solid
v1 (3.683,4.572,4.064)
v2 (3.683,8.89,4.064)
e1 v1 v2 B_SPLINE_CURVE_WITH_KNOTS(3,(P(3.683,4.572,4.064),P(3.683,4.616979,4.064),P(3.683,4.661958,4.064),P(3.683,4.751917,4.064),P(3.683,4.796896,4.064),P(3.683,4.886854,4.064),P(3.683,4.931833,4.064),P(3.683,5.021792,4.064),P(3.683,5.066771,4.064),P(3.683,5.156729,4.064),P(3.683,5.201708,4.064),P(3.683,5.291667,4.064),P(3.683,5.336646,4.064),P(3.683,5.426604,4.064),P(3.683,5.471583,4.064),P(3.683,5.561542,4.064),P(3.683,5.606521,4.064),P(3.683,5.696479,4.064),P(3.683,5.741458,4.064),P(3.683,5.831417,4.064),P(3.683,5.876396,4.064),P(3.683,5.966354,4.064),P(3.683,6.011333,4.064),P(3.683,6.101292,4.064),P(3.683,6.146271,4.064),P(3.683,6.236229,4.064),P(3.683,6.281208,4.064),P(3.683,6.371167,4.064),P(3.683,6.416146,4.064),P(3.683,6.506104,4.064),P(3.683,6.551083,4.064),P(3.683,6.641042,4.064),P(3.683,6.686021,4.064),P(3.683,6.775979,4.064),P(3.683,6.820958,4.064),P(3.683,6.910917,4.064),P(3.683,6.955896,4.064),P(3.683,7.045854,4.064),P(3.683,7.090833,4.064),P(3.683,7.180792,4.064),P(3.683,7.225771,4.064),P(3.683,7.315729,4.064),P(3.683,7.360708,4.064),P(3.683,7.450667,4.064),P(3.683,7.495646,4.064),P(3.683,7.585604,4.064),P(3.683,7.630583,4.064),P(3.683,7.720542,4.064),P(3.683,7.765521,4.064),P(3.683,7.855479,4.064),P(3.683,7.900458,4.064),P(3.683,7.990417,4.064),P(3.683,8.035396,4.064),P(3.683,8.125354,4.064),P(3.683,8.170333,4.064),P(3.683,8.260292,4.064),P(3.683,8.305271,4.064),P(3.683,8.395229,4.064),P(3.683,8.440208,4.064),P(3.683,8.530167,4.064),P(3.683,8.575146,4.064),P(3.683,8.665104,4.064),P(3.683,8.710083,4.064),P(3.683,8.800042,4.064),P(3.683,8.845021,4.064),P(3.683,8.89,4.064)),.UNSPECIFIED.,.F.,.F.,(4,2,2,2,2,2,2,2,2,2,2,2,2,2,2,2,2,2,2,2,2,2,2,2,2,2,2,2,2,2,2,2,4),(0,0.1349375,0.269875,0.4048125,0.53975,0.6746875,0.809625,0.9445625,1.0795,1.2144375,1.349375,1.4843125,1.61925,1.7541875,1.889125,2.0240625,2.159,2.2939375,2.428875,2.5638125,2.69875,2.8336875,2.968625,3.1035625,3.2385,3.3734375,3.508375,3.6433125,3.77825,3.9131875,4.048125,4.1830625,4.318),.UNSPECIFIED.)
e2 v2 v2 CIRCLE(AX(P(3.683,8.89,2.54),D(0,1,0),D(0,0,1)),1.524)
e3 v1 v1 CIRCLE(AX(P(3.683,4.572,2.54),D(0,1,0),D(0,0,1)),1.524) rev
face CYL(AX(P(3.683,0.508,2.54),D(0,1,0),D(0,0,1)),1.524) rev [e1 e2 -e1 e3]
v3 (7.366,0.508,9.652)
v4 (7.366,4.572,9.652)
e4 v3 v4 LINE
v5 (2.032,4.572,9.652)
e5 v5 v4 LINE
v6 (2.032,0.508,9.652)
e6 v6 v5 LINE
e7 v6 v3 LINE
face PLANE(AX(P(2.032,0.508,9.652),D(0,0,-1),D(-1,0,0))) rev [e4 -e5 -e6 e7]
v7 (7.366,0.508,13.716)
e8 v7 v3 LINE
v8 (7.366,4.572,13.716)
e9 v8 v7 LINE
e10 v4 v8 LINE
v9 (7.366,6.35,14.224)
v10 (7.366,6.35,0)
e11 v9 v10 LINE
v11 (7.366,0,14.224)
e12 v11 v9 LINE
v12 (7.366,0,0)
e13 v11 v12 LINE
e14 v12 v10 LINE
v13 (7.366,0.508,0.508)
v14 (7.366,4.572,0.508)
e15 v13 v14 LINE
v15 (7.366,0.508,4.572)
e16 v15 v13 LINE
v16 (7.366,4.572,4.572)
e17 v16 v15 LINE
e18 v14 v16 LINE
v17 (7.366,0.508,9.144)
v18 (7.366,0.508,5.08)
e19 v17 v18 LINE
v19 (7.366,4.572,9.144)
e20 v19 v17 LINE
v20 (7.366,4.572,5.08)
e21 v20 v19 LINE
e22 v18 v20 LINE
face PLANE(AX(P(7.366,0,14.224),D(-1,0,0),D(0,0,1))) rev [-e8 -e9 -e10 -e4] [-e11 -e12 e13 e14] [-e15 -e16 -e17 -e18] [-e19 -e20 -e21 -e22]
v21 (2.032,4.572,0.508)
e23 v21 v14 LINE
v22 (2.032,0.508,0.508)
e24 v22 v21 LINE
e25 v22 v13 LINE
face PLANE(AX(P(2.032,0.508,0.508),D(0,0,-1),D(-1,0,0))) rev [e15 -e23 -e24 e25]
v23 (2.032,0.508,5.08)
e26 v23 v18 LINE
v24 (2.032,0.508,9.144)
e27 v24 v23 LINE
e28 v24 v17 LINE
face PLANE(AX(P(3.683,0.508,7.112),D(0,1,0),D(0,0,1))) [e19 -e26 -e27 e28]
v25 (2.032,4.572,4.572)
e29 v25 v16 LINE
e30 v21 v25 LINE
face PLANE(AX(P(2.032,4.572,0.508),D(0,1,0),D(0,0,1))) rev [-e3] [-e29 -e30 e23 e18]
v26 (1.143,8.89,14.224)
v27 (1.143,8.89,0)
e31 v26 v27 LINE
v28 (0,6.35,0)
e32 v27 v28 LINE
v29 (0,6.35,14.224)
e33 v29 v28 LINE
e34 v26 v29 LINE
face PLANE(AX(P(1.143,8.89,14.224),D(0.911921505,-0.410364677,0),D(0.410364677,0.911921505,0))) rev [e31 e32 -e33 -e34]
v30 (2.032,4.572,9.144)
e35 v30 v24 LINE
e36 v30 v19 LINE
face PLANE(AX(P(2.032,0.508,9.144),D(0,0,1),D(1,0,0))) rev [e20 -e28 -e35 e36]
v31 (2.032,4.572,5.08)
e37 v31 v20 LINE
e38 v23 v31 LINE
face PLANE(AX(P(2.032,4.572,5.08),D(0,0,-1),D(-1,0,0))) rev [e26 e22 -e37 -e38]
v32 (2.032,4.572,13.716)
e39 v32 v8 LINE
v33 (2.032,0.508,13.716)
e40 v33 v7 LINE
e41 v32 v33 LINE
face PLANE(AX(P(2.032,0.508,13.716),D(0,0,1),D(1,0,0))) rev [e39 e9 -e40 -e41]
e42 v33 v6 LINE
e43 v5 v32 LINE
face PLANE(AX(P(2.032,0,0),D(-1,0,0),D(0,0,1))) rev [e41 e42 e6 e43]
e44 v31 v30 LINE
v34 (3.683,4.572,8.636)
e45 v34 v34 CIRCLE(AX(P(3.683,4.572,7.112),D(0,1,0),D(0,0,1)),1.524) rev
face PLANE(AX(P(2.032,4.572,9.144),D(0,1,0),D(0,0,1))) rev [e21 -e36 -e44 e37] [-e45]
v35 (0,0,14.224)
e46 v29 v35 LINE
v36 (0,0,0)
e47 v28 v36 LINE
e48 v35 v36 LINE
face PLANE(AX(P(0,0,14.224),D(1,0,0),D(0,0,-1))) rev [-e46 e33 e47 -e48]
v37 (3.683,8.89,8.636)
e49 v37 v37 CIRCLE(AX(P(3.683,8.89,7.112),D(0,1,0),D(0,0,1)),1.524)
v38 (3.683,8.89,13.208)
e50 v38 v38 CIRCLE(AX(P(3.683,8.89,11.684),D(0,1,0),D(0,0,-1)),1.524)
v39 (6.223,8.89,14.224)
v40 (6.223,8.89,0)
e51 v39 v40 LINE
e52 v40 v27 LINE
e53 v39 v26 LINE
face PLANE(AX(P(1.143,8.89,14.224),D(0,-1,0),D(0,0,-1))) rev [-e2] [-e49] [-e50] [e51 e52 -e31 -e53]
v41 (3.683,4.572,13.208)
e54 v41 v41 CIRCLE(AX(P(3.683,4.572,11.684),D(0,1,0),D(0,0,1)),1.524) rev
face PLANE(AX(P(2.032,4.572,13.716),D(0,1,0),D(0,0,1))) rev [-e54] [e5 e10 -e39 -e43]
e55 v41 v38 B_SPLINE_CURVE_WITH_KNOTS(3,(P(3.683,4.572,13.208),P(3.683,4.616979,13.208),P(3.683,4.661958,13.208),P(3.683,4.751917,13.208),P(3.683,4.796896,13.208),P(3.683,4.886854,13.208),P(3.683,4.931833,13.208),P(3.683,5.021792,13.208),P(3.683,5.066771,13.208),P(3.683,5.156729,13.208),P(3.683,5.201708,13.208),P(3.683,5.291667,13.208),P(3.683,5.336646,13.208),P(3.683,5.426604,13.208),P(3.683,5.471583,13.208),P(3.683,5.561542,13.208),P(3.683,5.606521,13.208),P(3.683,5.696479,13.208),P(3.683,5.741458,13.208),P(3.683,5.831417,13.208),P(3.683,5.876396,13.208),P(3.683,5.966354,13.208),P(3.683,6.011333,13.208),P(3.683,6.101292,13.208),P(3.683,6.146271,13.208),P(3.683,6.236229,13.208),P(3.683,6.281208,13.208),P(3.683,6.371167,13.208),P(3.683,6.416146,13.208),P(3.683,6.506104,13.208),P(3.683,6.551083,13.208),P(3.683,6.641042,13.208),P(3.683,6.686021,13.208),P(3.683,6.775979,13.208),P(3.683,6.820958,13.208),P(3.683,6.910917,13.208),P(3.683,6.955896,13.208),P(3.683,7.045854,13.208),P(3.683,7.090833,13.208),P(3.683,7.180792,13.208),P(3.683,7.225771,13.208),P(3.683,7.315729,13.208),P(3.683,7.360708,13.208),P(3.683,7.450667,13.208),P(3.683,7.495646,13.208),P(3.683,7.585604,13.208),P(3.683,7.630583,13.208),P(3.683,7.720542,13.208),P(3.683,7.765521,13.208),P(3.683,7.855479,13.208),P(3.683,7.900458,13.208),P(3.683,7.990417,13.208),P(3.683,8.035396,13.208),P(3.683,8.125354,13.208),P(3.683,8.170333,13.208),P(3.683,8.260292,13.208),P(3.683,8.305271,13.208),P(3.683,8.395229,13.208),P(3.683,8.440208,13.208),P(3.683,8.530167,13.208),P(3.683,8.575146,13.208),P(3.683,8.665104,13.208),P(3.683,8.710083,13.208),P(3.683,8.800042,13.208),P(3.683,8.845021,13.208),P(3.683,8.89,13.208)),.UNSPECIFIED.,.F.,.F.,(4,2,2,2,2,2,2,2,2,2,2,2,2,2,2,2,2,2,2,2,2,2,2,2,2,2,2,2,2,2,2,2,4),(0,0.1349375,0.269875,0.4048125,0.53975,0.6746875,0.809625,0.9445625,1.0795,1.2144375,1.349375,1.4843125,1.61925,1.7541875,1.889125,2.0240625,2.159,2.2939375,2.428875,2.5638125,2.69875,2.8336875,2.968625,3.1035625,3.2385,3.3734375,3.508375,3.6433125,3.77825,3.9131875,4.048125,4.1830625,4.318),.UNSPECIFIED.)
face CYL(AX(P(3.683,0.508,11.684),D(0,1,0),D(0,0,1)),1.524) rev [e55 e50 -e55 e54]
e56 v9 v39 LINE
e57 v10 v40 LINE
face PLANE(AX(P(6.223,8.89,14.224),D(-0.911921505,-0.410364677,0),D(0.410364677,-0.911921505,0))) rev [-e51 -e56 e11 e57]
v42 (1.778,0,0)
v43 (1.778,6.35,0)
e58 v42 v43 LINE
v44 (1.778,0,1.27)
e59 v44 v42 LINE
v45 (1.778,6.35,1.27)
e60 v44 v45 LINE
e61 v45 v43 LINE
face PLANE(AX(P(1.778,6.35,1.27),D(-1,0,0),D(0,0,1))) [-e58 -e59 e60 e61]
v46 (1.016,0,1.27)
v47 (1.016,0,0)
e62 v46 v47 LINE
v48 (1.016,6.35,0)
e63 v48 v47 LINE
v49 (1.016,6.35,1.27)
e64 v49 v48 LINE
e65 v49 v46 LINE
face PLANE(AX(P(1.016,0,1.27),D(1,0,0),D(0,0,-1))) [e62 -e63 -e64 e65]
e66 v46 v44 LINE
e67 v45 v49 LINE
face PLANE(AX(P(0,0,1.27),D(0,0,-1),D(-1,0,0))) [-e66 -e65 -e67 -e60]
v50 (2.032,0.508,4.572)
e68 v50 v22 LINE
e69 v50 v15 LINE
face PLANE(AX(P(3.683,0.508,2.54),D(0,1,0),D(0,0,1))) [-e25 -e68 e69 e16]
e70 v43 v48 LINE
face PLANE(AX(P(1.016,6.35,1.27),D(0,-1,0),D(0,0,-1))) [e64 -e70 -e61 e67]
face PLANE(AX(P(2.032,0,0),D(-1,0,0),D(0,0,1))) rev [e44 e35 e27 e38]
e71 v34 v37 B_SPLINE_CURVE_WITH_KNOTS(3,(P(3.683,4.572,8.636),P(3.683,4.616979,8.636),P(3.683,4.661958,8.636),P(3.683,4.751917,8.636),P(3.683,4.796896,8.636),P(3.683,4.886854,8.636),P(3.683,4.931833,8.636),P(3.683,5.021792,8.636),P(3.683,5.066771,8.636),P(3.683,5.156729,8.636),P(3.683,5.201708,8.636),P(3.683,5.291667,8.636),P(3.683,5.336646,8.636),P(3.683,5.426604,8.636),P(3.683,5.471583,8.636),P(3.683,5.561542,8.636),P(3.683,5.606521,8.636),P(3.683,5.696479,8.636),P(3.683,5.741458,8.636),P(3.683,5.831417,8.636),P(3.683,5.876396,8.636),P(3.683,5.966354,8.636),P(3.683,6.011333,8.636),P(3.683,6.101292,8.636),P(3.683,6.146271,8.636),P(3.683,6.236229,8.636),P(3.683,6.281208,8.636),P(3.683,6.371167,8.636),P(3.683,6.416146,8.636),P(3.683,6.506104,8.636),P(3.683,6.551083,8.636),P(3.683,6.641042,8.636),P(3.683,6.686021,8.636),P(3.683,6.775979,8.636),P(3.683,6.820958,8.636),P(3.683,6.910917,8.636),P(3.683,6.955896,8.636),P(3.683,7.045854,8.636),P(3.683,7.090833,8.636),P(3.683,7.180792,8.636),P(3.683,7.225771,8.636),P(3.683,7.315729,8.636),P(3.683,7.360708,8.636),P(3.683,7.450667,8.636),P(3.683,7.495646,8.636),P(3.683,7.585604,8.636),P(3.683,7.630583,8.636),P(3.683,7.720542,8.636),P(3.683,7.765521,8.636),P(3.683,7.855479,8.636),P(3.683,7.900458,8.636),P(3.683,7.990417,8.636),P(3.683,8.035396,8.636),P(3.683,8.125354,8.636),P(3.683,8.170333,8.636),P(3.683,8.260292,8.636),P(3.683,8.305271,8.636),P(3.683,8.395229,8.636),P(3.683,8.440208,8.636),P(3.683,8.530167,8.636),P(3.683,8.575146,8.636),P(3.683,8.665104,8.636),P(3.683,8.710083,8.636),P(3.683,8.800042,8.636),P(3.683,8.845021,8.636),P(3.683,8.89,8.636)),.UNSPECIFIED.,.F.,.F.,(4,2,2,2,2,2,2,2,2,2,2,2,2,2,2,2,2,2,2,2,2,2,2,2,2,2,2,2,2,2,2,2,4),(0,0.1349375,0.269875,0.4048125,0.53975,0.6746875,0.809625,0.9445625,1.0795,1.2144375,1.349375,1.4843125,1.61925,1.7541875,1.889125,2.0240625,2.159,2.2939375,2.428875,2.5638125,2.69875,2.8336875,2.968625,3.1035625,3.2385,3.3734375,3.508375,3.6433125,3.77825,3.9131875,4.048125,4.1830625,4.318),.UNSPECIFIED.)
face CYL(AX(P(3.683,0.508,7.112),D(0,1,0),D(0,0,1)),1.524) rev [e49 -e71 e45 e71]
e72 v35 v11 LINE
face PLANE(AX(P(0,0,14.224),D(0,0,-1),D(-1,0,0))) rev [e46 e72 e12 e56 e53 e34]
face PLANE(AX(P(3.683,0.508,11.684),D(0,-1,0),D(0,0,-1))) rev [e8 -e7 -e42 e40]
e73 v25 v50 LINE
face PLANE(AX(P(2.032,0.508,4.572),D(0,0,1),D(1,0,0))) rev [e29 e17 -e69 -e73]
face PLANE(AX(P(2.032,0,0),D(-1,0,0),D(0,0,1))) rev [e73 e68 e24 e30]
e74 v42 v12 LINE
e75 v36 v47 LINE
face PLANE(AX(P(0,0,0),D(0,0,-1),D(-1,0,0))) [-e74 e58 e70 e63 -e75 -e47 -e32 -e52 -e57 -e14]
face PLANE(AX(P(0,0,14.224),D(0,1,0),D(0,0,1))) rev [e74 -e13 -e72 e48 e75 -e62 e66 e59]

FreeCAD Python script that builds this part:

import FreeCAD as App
import Part
import Sketcher
Q = App.Units.Quantity

doc = App.newDocument("Part")
body = doc.addObject("PartDesign::Body", "Body")

# Sketch on XY plane
sketch1 = doc.addObject("Sketcher::SketchObject", "Sketch")
body.addObject(sketch1)
sketch1.AttachmentSupport = (doc.XY_Plane, [""])
sketch1.MapMode = "FlatFace"
sketch1.addGeometry(Part.LineSegment(App.Vector(0, 0, 0), App.Vector(7.4, 0, 0)), False)
sketch1.addGeometry(Part.LineSegment(App.Vector(7.4, 0, 0), App.Vector(7.4, 6.3, 0)), False)
sketch1.addGeometry(Part.LineSegment(App.Vector(7.4, 6.3, 0), App.Vector(6.2, 8.9, 0)), False)
sketch1.addGeometry(Part.LineSegment(App.Vector(6.2, 8.9, 0), App.Vector(1.1, 8.9, 0)), False)
sketch1.addGeometry(Part.LineSegment(App.Vector(1.1, 8.9, 0), App.Vector(0, 6.3, 0)), False)
sketch1.addGeometry(Part.LineSegment(App.Vector(0, 6.3, 0), App.Vector(0, 0, 0)), False)
sketch1.addConstraint(Sketcher.Constraint("Coincident", 0, 2, 1, 1))
sketch1.addConstraint(Sketcher.Constraint("Coincident", 1, 2, 2, 1))
sketch1.addConstraint(Sketcher.Constraint("Coincident", 2, 2, 3, 1))
sketch1.addConstraint(Sketcher.Constraint("Coincident", 3, 2, 4, 1))
sketch1.addConstraint(Sketcher.Constraint("Coincident", 4, 2, 5, 1))
sketch1.addConstraint(Sketcher.Constraint("Coincident", 5, 2, 0, 1))
sketch1.addConstraint(Sketcher.Constraint("Horizontal", 0))
sketch1.addConstraint(Sketcher.Constraint("Vertical", 1))
sketch1.addConstraint(Sketcher.Constraint("Horizontal", 3))
sketch1.addConstraint(Sketcher.Constraint("Vertical", 5))
sketch1.addConstraint(Sketcher.Constraint("Coincident", 5, 2, -1, 1))
sketch1.addConstraint(Sketcher.Constraint("Horizontal", 1, 2, 4, 2))
sketch1.addConstraint(Sketcher.Constraint("Equal", 2, 4))
sketch1.addConstraint(Sketcher.Constraint("DistanceX", 3, 2, 3, 1, Q("0.2 in")))
sketch1.addConstraint(Sketcher.Constraint("DistanceX", 0, 1, 0, 2, Q("0.29 in")))
sketch1.addConstraint(Sketcher.Constraint("DistanceY", 1, 1, 1, 2, Q("0.25 in")))
sketch1.addConstraint(Sketcher.Constraint("DistanceY", 1, 2, 2, 2, Q("0.1 in")))
pad1 = doc.addObject("PartDesign::Pad", "Pad")
body.addObject(pad1)
pad1.Profile = sketch1
pad1.Length = Q("0.56 in")

# Sketch on XZ plane
sketch2 = doc.addObject("Sketcher::SketchObject", "Sketch001")
body.addObject(sketch2)
sketch2.AttachmentSupport = (doc.XZ_Plane, [""])
sketch2.MapMode = "FlatFace"
sketch2.AttachmentOffset = App.Placement(App.Vector(0, 0, -0.35 * 25.4), App.Rotation())
sketch2.addGeometry(Part.Circle(App.Vector(3.7, 2.5, 0), App.Vector(0, 0, 1), 1.5), False)
sketch2.addGeometry(Part.Circle(App.Vector(3.7, 11.7, 0), App.Vector(0, 0, 1), 1.5), False)
sketch2.addGeometry(Part.Circle(App.Vector(3.7, 7.1, 0), App.Vector(0, 0, 1), 1.5), False)
sketch2.addConstraint(Sketcher.Constraint("Equal", 0, 1))
sketch2.addConstraint(Sketcher.Constraint("Equal", 1, 2))
sketch2.addConstraint(Sketcher.Constraint("Vertical", 0, 3, 1, 3))
sketch2.addConstraint(Sketcher.Constraint("Vertical", 1, 3, 2, 3))
sketch2.addConstraint(Sketcher.Constraint("Diameter", 0, Q("0.12 in")))
sketch2.addConstraint(Sketcher.Constraint("DistanceY", -1, 1, 0, 3, Q("0.1 in")))
sketch2.addConstraint(Sketcher.Constraint("DistanceY", -1, 1, 1, 3, Q("0.46 in")))
sketch2.addConstraint(Sketcher.Constraint("DistanceY", -1, 1, 2, 3, Q("0.28 in")))
sketch2.addConstraint(Sketcher.Constraint("DistanceX", -1, 1, 0, 3, Q("0.145 in")))
pocket1 = doc.addObject("PartDesign::Pocket", "Pocket")
body.addObject(pocket1)
pocket1.Profile = sketch2
pocket1.Length = Q("0.33 in")
pocket1.Reversed = True

# Sketch on YZ plane
sketch3 = doc.addObject("Sketcher::SketchObject", "Sketch002")
body.addObject(sketch3)
sketch3.AttachmentSupport = (doc.YZ_Plane, [""])
sketch3.MapMode = "FlatFace"
sketch3.AttachmentOffset = App.Placement(App.Vector(0, 0, 0.29 * 25.4), App.Rotation())
sketch3.addGeometry(Part.LineSegment(App.Vector(4.6, 13.7, 0), App.Vector(0.5, 13.7, 0)), False)
sketch3.addGeometry(Part.LineSegment(App.Vector(0.5, 13.7, 0), App.Vector(0.5, 9.7, 0)), False)
sketch3.addGeometry(Part.LineSegment(App.Vector(0.5, 9.7, 0), App.Vector(4.6, 9.7, 0)), False)
sketch3.addGeometry(Part.LineSegment(App.Vector(4.6, 9.7, 0), App.Vector(4.6, 13.7, 0)), False)
sketch3.addGeometry(Part.LineSegment(App.Vector(0.5, 9.1, 0), App.Vector(0.5, 5.1, 0)), False)
sketch3.addGeometry(Part.LineSegment(App.Vector(0.5, 5.1, 0), App.Vector(4.6, 5.1, 0)), False)
sketch3.addGeometry(Part.LineSegment(App.Vector(4.6, 5.1, 0), App.Vector(4.6, 9.1, 0)), False)
sketch3.addGeometry(Part.LineSegment(App.Vector(4.6, 9.1, 0), App.Vector(0.5, 9.1, 0)), False)
sketch3.addGeometry(Part.LineSegment(App.Vector(4.6, 4.6, 0), App.Vector(0.5, 4.6, 0)), False)
sketch3.addGeometry(Part.LineSegment(App.Vector(0.5, 4.6, 0), App.Vector(0.5, 0.5, 0)), False)
sketch3.addGeometry(Part.LineSegment(App.Vector(0.5, 0.5, 0), App.Vector(4.6, 0.5, 0)), False)
sketch3.addGeometry(Part.LineSegment(App.Vector(4.6, 0.5, 0), App.Vector(4.6, 4.6, 0)), False)
sketch3.addConstraint(Sketcher.Constraint("Coincident", 0, 2, 1, 1))
sketch3.addConstraint(Sketcher.Constraint("Coincident", 1, 2, 2, 1))
sketch3.addConstraint(Sketcher.Constraint("Coincident", 2, 2, 3, 1))
sketch3.addConstraint(Sketcher.Constraint("Coincident", 3, 2, 0, 1))
sketch3.addConstraint(Sketcher.Constraint("Coincident", 4, 2, 5, 1))
sketch3.addConstraint(Sketcher.Constraint("Coincident", 5, 2, 6, 1))
sketch3.addConstraint(Sketcher.Constraint("Coincident", 6, 2, 7, 1))
sketch3.addConstraint(Sketcher.Constraint("Coincident", 7, 2, 4, 1))
sketch3.addConstraint(Sketcher.Constraint("Coincident", 8, 2, 9, 1))
sketch3.addConstraint(Sketcher.Constraint("Coincident", 9, 2, 10, 1))
sketch3.addConstraint(Sketcher.Constraint("Coincident", 10, 2, 11, 1))
sketch3.addConstraint(Sketcher.Constraint("Coincident", 11, 2, 8, 1))
sketch3.addConstraint(Sketcher.Constraint("Horizontal", 0))
sketch3.addConstraint(Sketcher.Constraint("Vertical", 1))
sketch3.addConstraint(Sketcher.Constraint("Horizontal", 2))
sketch3.addConstraint(Sketcher.Constraint("Vertical", 3))
sketch3.addConstraint(Sketcher.Constraint("Vertical", 4))
sketch3.addConstraint(Sketcher.Constraint("Horizontal", 5))
sketch3.addConstraint(Sketcher.Constraint("Vertical", 6))
sketch3.addConstraint(Sketcher.Constraint("Horizontal", 7))
sketch3.addConstraint(Sketcher.Constraint("Horizontal", 8))
sketch3.addConstraint(Sketcher.Constraint("Vertical", 9))
sketch3.addConstraint(Sketcher.Constraint("Horizontal", 10))
sketch3.addConstraint(Sketcher.Constraint("Vertical", 11))
sketch3.addConstraint(Sketcher.Constraint("Vertical", 1, 2, 4, 2))
sketch3.addConstraint(Sketcher.Constraint("Vertical", 3, 2, 5, 2))
sketch3.addConstraint(Sketcher.Constraint("Vertical", 7, 2, 8, 2))
sketch3.addConstraint(Sketcher.Constraint("Vertical", 6, 2, 10, 2))
sketch3.addConstraint(Sketcher.Constraint("Equal", 10, 1))
sketch3.addConstraint(Sketcher.Constraint("Equal", 3, 4))
sketch3.addConstraint(Sketcher.Constraint("Equal", 6, 9))
sketch3.addConstraint(Sketcher.Constraint("DistanceX", 0, 2, 0, 1, Q("0.16 in")))
sketch3.addConstraint(Sketcher.Constraint("DistanceY", -1, 1, 4, 2, Q("0.2 in")))
sketch3.addConstraint(Sketcher.Constraint("DistanceY", 8, 2, 1, 2, Q("0.2 in")))
sketch3.addConstraint(Sketcher.Constraint("DistanceX", -1, 1, 0, 2, Q("0.02 in")))
sketch3.addConstraint(Sketcher.Constraint("DistanceY", -1, 1, 0, 2, Q("0.54 in")))
pocket2 = doc.addObject("PartDesign::Pocket", "Pocket001")
body.addObject(pocket2)
pocket2.Profile = sketch3
pocket2.Length = Q("0.21 in")

# Sketch on XY plane
sketch4 = doc.addObject("Sketcher::SketchObject", "Sketch003")
body.addObject(sketch4)
sketch4.AttachmentSupport = (doc.XY_Plane, [""])
sketch4.MapMode = "FlatFace"
sketch4.addGeometry(Part.LineSegment(App.Vector(1, 6.3, 0), App.Vector(1, 0, 0)), False)
sketch4.addGeometry(Part.LineSegment(App.Vector(1, 0, 0), App.Vector(1.8, 0, 0)), False)
sketch4.addGeometry(Part.LineSegment(App.Vector(1.8, 0, 0), App.Vector(1.8, 6.3, 0)), False)
sketch4.addGeometry(Part.LineSegment(App.Vector(1.8, 6.3, 0), App.Vector(1, 6.3, 0)), False)
sketch4.addConstraint(Sketcher.Constraint("Coincident", 0, 2, 1, 1))
sketch4.addConstraint(Sketcher.Constraint("Coincident", 1, 2, 2, 1))
sketch4.addConstraint(Sketcher.Constraint("Coincident", 2, 2, 3, 1))
sketch4.addConstraint(Sketcher.Constraint("Coincident", 3, 2, 0, 1))
sketch4.addConstraint(Sketcher.Constraint("Vertical", 0))
sketch4.addConstraint(Sketcher.Constraint("Horizontal", 1))
sketch4.addConstraint(Sketcher.Constraint("Vertical", 2))
sketch4.addConstraint(Sketcher.Constraint("Horizontal", 3))
sketch4.addConstraint(Sketcher.Constraint("PointOnObject", 0, 2, -1))
sketch4.addConstraint(Sketcher.Constraint("DistanceX", 1, 1, 1, 2, Q("0.03 in")))
sketch4.addConstraint(Sketcher.Constraint("DistanceY", 0, 2, 0, 1, Q("0.25 in")))
sketch4.addConstraint(Sketcher.Constraint("DistanceX", -1, 1, 0, 2, Q("0.04 in")))
pocket3 = doc.addObject("PartDesign::Pocket", "Pocket002")
body.addObject(pocket3)
pocket3.Profile = sketch4
pocket3.Length = Q("0.05 in")
pocket3.Reversed = True

doc.recompute()
